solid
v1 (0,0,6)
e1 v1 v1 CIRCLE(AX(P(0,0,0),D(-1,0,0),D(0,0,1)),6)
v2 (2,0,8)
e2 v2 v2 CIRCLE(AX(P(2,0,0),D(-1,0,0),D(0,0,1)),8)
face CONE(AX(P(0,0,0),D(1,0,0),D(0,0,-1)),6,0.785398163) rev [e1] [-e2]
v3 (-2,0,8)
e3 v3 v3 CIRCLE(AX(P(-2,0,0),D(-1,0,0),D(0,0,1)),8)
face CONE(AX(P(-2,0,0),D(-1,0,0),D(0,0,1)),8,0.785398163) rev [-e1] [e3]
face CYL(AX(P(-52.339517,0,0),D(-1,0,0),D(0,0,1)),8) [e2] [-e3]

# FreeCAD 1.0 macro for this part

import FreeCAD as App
import Part
import Sketcher
Q = App.Units.Quantity


def add_polygon(sketch, points):
    """Adds a closed chain of lines whose ends are joined by coincident constraints."""
    first, n = sketch.GeometryCount, len(points)
    for a, b in zip(points, points[1:] + points[:1]):
        sketch.addGeometry(Part.LineSegment(App.Vector(*a, 0), App.Vector(*b, 0)), False)
    for i in range(n):
        sketch.addConstraint(Sketcher.Constraint("Coincident", first + i, 2, first + (i + 1) % n, 1))

doc = App.newDocument("Part")
body = doc.addObject("PartDesign::Body", "Body")

# Sketch on XY plane
sketch1 = body.newObject("Sketcher::SketchObject", "Sketch")
sketch1.AttachmentSupport = (doc.getObject("XY_Plane"), [""])
sketch1.MapMode = "FlatFace"
add_polygon(sketch1, [(2, 8), (-2, 8), (0, 6)])  # lines 0-2
sketch1.addConstraint(Sketcher.Constraint("Horizontal", 0))
sketch1.addConstraint(Sketcher.Constraint("PointOnObject", 1, 2, -2))
sketch1.addConstraint(Sketcher.Constraint("Perpendicular", 1, 2))
sketch1.addConstraint(Sketcher.Constraint("Equal", 1, 2))
sketch1.addConstraint(Sketcher.Constraint("DistanceX", 0, 2, 0, 1, Q("4 mm")))
sketch1.addConstraint(Sketcher.Constraint("DistanceY", -1, 1, 0, 2, Q("8 mm")))
revolution = body.newObject("PartDesign::Revolution", "Revolution")
revolution.Profile = sketch1
revolution.ReferenceAxis = (sketch1, ["H_Axis"])
revolution.Angle = 360

doc.recompute()
